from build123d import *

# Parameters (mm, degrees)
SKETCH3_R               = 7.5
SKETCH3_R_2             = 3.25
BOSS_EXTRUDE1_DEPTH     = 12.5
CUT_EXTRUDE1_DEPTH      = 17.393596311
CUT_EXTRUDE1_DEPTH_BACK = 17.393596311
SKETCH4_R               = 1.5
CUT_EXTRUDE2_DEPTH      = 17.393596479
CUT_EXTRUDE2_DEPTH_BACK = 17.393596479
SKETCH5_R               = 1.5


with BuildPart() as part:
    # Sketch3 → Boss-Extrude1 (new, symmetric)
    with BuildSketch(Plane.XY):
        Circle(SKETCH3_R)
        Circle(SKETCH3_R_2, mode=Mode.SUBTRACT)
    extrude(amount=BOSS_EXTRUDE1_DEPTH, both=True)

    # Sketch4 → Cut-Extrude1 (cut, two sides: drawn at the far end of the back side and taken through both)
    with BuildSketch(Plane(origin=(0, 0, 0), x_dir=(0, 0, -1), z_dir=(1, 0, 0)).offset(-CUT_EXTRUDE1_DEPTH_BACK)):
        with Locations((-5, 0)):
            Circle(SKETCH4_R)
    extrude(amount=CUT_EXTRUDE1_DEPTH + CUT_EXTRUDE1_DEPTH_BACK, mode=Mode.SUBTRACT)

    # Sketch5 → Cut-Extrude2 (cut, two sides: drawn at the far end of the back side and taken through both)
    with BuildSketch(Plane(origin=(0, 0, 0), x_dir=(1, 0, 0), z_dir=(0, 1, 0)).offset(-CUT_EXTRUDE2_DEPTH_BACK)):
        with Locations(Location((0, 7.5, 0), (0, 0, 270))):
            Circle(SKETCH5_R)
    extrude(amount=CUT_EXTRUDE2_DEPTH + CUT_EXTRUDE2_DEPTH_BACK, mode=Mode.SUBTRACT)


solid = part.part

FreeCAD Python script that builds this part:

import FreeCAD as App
import Part
import Sketcher

V = App.Vector

doc = App.newDocument("Part")
body = doc.addObject("PartDesign::Body", "Body")

sketch1 = doc.addObject("Sketcher::SketchObject", "Sketch")
body.addObject(sketch1)
sketch1.AttachmentSupport = (doc.XY_Plane, [""])
sketch1.MapMode = "FlatFace"
sketch1.addGeometry([
    Part.Circle(V(0, 0, 0), V(0, 0, 1), 7.5),
    Part.Circle(V(0, 0, 0), V(0, 0, 1), 3.2),
], False)
sketch1.addConstraint([
    Sketcher.Constraint("Coincident", 0, 3, -1, 1),
    Sketcher.Constraint("Coincident", 1, 3, -1, 1),
    Sketcher.Constraint("Diameter", 0, 15.0),
    Sketcher.Constraint("Diameter", 1, 6.5),
])
pad1 = doc.addObject("PartDesign::Pad", "Pad")
body.addObject(pad1)
pad1.Profile = sketch1
pad1.Length = 25
pad1.Midplane = True

sketch2 = doc.addObject("Sketcher::SketchObject", "Sketch001")
body.addObject(sketch2)
sketch2.AttachmentSupport = (doc.YZ_Plane, [""])
sketch2.MapMode = "FlatFace"
sketch2.addGeometry(Part.Circle(V(0, 5, 0), V(0, 0, 1), 1.5), False)
sketch2.addConstraint([
    Sketcher.Constraint("PointOnObject", 0, 3, -2),
    Sketcher.Constraint("Diameter", 0, 3.0),
    Sketcher.Constraint("DistanceY", -1, 1, 0, 3, 5.0),
])
pocket1 = doc.addObject("PartDesign::Pocket", "Pocket")
body.addObject(pocket1)
pocket1.Profile = sketch2
pocket1.Type = "ThroughAll"
pocket1.Midplane = True

sketch3 = doc.addObject("Sketcher::SketchObject", "Sketch002")
body.addObject(sketch3)
sketch3.AttachmentSupport = (doc.XZ_Plane, [""])
sketch3.MapMode = "FlatFace"
sketch3.addGeometry(Part.Circle(V(0, -7.5, 0), V(0, 0, 1), 1.5), False)
sketch3.addConstraint([
    Sketcher.Constraint("PointOnObject", 0, 3, -2),
    Sketcher.Constraint("Diameter", 0, 3.0),
    Sketcher.Constraint("DistanceY", 0, 3, -1, 1, 7.5),
])
pocket2 = doc.addObject("PartDesign::Pocket", "Pocket001")
body.addObject(pocket2)
pocket2.Profile = sketch3
pocket2.Type = "ThroughAll"
pocket2.Midplane = True

doc.recompute()
